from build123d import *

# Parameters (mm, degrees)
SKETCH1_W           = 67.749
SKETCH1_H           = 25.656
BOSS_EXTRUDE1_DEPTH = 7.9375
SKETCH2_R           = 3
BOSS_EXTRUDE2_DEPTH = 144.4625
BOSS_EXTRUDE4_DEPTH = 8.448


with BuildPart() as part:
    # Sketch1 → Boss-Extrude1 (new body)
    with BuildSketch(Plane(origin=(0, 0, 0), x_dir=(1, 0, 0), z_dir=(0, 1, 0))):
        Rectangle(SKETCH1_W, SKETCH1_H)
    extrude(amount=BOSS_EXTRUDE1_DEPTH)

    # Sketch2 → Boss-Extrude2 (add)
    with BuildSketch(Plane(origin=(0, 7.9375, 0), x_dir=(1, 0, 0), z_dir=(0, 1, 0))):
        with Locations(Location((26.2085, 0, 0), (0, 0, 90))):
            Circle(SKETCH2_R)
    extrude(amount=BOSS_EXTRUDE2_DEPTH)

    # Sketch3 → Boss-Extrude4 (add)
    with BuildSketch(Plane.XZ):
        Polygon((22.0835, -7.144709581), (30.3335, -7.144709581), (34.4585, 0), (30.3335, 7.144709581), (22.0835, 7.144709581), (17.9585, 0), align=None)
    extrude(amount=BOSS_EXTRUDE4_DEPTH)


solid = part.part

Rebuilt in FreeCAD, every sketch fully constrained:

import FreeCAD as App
import Part
import Sketcher

V = App.Vector
Q = App.Units.Quantity


def add_polygon(sketch, points):
    """Adds a closed chain of lines whose ends are joined by coincident constraints."""
    first, n = sketch.GeometryCount, len(points)
    for a, b in zip(points, points[1:] + points[:1]):
        sketch.addGeometry(Part.LineSegment(App.Vector(*a, 0), App.Vector(*b, 0)), False)
    for i in range(n):
        sketch.addConstraint(Sketcher.Constraint("Coincident", first + i, 2, first + (i + 1) % n, 1))

doc = App.newDocument("Part")
params = doc.addObject("Spreadsheet::Sheet", "Params")
for row, (alias, value) in enumerate([
    ("pad1_length", "0.3125 in"),
    ("pad2_length", "5.6875 in"),
    ("pad3_length", "8.448 mm"),
], start=1):
    params.set(f"A{row}", alias)
    params.set(f"B{row}", "=" + value)
    params.setAlias(f"B{row}", alias)

body = doc.addObject("PartDesign::Body", "Body")

# Sketch on XZ plane
sketch1 = body.newObject("Sketcher::SketchObject", "Sketch")
sketch1.AttachmentSupport = (doc.getObject("XZ_Plane"), [""])
sketch1.MapMode = "FlatFace"
add_polygon(sketch1, [(-34, -13), (-34, 13), (34, 13), (34, -13)])  # lines 0-3
sketch1.addConstraint([
    Sketcher.Constraint("Vertical", 0),
    Sketcher.Constraint("Horizontal", 1),
    Sketcher.Constraint("Vertical", 2),
    Sketcher.Constraint("Horizontal", 3),
    Sketcher.Constraint("Symmetric", 0, 2, 2, 2, -1, 1),
    Sketcher.Constraint("DistanceX", 1, 1, 1, 2, 67.749),
    Sketcher.Constraint("DistanceY", 0, 1, 0, 2, 25.656),
])
pad1 = body.newObject("PartDesign::Pad", "Pad")
pad1.Profile = sketch1
pad1.setExpression("Length", "Params.pad1_length")
pad1.Reversed = True

# Sketch on XZ plane
sketch2 = body.newObject("Sketcher::SketchObject", "Sketch001")
sketch2.AttachmentSupport = (doc.getObject("XZ_Plane"), [""])
sketch2.MapMode = "FlatFace"
sketch2.AttachmentOffset = App.Placement(V(0, 0, -0.3125 * 25.4), App.Rotation())
sketch2.addGeometry(Part.Circle(V(26.2, 0, 0), V(0, 0, 1), 3), False)
sketch2.addConstraint([
    Sketcher.Constraint("PointOnObject", 0, 3, -1),
    Sketcher.Constraint("Diameter", 0, 6.0),
    Sketcher.Constraint("DistanceX", -1, 1, 0, 3, 26.2085),
])
pad2 = body.newObject("PartDesign::Pad", "Pad001")
pad2.Profile = sketch2
pad2.setExpression("Length", "Params.pad2_length")
pad2.Reversed = True

# Sketch on XZ plane
sketch3 = body.newObject("Sketcher::SketchObject", "Sketch002")
sketch3.AttachmentSupport = (doc.getObject("XZ_Plane"), [""])
sketch3.MapMode = "FlatFace"
add_polygon(sketch3, [(22, -7), (30, -7), (34, 0), (30, 7), (22, 7), (18, 0)])  # lines 0-5
sketch3.addConstraint([
    Sketcher.Constraint("Horizontal", 0),
    Sketcher.Constraint("Horizontal", 3),
    Sketcher.Constraint("Symmetric", 0, 2, 2, 2, -1),
    Sketcher.Constraint("PointOnObject", 1, 2, -1),
    Sketcher.Constraint("PointOnObject", 4, 2, -1),
    Sketcher.Constraint("Parallel", 1, 4),
    Sketcher.Constraint("Parallel", 2, 5),
    Sketcher.Constraint("Angle", 1, Q("60 deg")),
    Sketcher.Constraint("DistanceX", 0, 1, 0, 2, 8.25),
    Sketcher.Constraint("Distance", 1, 8.25),
    Sketcher.Constraint("DistanceX", -1, 1, 0, 2, 30.3335),
])
pad3 = body.newObject("PartDesign::Pad", "Pad002")
pad3.Profile = sketch3
pad3.setExpression("Length", "Params.pad3_length")

doc.recompute()
